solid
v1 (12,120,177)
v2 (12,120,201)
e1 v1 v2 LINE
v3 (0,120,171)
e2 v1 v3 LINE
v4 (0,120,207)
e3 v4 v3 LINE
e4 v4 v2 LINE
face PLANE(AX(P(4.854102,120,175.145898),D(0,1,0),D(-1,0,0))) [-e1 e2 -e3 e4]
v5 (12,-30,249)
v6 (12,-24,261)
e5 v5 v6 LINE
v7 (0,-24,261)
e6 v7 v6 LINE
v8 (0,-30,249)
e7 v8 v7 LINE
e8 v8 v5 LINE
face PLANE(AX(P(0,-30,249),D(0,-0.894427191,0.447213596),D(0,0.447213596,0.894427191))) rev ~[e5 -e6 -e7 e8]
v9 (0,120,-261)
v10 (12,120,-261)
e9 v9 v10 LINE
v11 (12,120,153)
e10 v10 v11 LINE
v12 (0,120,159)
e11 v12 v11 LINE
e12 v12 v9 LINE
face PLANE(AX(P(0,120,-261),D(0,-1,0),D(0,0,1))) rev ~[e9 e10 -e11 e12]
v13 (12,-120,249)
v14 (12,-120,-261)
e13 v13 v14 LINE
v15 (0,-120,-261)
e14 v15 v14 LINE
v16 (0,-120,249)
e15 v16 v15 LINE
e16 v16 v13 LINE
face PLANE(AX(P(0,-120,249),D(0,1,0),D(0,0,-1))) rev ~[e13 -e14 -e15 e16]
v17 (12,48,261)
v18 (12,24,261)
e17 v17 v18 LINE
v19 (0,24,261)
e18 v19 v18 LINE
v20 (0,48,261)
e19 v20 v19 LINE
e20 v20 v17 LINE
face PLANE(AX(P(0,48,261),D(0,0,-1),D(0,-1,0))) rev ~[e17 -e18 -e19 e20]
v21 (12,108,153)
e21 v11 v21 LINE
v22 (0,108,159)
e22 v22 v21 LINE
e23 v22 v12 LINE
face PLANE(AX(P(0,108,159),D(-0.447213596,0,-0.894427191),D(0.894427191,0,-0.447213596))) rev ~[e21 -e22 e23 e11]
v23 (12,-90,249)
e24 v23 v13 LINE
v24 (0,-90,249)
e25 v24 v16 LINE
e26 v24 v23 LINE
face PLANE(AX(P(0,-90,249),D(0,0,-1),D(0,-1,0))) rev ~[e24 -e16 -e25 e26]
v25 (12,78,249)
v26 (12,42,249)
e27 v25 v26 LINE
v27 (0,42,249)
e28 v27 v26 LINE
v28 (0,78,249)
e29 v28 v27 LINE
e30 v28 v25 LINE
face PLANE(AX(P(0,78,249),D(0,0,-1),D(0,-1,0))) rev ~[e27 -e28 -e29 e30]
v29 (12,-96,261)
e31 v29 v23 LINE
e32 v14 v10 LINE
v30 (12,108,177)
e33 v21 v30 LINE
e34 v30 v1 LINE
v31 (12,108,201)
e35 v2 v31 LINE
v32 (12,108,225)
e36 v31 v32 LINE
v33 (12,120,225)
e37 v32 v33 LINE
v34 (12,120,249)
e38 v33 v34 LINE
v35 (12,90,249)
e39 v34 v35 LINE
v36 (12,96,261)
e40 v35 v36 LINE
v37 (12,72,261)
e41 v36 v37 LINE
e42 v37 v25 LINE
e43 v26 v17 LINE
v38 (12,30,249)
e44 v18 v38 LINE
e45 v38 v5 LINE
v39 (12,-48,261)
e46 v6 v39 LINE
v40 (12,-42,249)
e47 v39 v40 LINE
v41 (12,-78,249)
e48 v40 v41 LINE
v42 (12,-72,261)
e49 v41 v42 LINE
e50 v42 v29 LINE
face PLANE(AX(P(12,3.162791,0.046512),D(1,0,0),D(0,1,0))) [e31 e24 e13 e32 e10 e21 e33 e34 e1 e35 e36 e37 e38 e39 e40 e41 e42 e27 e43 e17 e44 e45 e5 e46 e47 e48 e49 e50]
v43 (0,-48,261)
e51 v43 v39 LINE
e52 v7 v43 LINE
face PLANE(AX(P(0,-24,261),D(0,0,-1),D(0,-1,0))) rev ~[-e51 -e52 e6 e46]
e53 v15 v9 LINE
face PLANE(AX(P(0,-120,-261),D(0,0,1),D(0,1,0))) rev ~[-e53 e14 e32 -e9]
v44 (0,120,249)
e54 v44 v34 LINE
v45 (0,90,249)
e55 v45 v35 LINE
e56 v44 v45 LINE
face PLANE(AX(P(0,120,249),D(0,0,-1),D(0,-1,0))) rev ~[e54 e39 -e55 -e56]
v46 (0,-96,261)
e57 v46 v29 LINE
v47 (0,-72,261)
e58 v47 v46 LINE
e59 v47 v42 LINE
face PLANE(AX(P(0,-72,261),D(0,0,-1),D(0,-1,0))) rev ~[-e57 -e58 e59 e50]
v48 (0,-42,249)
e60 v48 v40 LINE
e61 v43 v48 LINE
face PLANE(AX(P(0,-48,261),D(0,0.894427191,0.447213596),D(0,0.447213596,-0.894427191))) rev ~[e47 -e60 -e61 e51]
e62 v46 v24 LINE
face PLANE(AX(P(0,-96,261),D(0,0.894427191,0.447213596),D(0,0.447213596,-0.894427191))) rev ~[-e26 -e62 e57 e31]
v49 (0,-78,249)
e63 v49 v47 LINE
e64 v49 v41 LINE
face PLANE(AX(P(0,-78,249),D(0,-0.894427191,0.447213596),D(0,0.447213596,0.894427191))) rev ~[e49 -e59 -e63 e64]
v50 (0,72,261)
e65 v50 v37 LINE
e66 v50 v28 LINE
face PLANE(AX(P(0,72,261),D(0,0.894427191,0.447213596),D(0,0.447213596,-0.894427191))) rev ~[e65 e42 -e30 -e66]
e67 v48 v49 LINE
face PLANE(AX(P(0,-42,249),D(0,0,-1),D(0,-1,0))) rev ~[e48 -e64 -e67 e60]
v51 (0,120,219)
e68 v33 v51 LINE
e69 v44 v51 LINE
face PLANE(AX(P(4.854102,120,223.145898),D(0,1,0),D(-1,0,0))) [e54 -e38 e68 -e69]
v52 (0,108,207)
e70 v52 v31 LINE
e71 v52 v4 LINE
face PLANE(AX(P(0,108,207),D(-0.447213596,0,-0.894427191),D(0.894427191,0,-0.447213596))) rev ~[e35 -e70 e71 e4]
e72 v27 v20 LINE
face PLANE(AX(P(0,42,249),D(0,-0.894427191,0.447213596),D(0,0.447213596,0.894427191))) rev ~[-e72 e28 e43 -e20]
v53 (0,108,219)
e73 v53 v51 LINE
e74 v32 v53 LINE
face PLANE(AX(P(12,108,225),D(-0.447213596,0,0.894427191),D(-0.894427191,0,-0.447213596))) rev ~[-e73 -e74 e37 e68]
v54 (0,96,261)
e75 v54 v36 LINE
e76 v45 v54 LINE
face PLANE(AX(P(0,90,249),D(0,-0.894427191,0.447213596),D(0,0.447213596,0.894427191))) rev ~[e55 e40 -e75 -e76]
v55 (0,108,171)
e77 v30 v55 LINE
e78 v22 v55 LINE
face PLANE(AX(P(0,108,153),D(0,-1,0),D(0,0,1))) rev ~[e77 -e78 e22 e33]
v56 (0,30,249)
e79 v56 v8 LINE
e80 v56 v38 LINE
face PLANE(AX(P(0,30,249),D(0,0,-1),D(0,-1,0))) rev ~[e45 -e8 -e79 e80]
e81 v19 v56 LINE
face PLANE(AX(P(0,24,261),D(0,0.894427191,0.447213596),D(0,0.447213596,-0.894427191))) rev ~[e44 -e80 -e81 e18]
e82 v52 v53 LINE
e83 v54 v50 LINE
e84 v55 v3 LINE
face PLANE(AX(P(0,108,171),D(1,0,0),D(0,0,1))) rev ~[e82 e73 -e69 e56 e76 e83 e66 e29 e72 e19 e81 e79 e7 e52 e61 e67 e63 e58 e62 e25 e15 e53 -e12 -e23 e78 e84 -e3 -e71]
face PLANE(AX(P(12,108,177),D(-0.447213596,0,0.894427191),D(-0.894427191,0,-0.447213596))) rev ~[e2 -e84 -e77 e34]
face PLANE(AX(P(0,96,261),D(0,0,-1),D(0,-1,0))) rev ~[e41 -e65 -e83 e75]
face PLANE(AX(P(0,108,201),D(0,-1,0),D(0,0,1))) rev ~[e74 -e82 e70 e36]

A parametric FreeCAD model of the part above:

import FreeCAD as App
import Part
import Sketcher

V = App.Vector

doc = App.newDocument("Part")
body = doc.addObject("PartDesign::Body", "Body")

# Sketch on YZ plane
sketch1 = body.newObject("Sketcher::SketchObject", "Sketch")
sketch1.AttachmentSupport = (doc.getObject("YZ_Plane"), [""])
sketch1.MapMode = "FlatFace"
sketch1.addGeometry(Part.LineSegment(V(120, 225, 0), V(120, 249, 0)), False)
sketch1.addGeometry(Part.LineSegment(V(120, 249, 0), V(90, 249, 0)), False)
sketch1.addGeometry(Part.LineSegment(V(90, 249, 0), V(96, 261, 0)), False)
sketch1.addGeometry(Part.LineSegment(V(96, 261, 0), V(72, 261, 0)), False)
sketch1.addGeometry(Part.LineSegment(V(72, 261, 0), V(78, 249, 0)), False)
sketch1.addGeometry(Part.LineSegment(V(78, 249, 0), V(42, 249, 0)), False)
sketch1.addGeometry(Part.LineSegment(V(42, 249, 0), V(48, 261, 0)), False)
sketch1.addGeometry(Part.LineSegment(V(48, 261, 0), V(24, 261, 0)), False)
sketch1.addGeometry(Part.LineSegment(V(24, 261, 0), V(30, 249, 0)), False)
sketch1.addGeometry(Part.LineSegment(V(30, 249, 0), V(-30, 249, 0)), False)
sketch1.addGeometry(Part.LineSegment(V(-30, 249, 0), V(-24, 261, 0)), False)
sketch1.addGeometry(Part.LineSegment(V(-24, 261, 0), V(-48, 261, 0)), False)
sketch1.addGeometry(Part.LineSegment(V(-48, 261, 0), V(-42, 249, 0)), False)
sketch1.addGeometry(Part.LineSegment(V(-42, 249, 0), V(-78, 249, 0)), False)
sketch1.addGeometry(Part.LineSegment(V(-78, 249, 0), V(-72, 261, 0)), False)
sketch1.addGeometry(Part.LineSegment(V(-72, 261, 0), V(-96, 261, 0)), False)
sketch1.addGeometry(Part.LineSegment(V(-96, 261, 0), V(-90, 249, 0)), False)
sketch1.addGeometry(Part.LineSegment(V(-90, 249, 0), V(-120, 249, 0)), False)
sketch1.addGeometry(Part.LineSegment(V(-120, 249, 0), V(-120, -261, 0)), False)
sketch1.addGeometry(Part.LineSegment(V(-120, -261, 0), V(120, -261, 0)), False)
sketch1.addGeometry(Part.LineSegment(V(120, -261, 0), V(120, 153, 0)), False)
sketch1.addGeometry(Part.LineSegment(V(120, 153, 0), V(108, 153, 0)), False)
sketch1.addGeometry(Part.LineSegment(V(108, 153, 0), V(108, 177, 0)), False)
sketch1.addGeometry(Part.LineSegment(V(108, 177, 0), V(120, 177, 0)), False)
sketch1.addGeometry(Part.LineSegment(V(120, 177, 0), V(120, 201, 0)), False)
sketch1.addGeometry(Part.LineSegment(V(120, 201, 0), V(108, 201, 0)), False)
sketch1.addGeometry(Part.LineSegment(V(108, 201, 0), V(108, 225, 0)), False)
sketch1.addGeometry(Part.LineSegment(V(108, 225, 0), V(120, 225, 0)), False)
sketch1.addConstraint(Sketcher.Constraint("Coincident", 0, 2, 1, 1))
sketch1.addConstraint(Sketcher.Constraint("Coincident", 1, 2, 2, 1))
sketch1.addConstraint(Sketcher.Constraint("Coincident", 2, 2, 3, 1))
sketch1.addConstraint(Sketcher.Constraint("Coincident", 3, 2, 4, 1))
sketch1.addConstraint(Sketcher.Constraint("Coincident", 4, 2, 5, 1))
sketch1.addConstraint(Sketcher.Constraint("Coincident", 5, 2, 6, 1))
sketch1.addConstraint(Sketcher.Constraint("Coincident", 6, 2, 7, 1))
sketch1.addConstraint(Sketcher.Constraint("Coincident", 7, 2, 8, 1))
sketch1.addConstraint(Sketcher.Constraint("Coincident", 8, 2, 9, 1))
sketch1.addConstraint(Sketcher.Constraint("Coincident", 9, 2, 10, 1))
sketch1.addConstraint(Sketcher.Constraint("Coincident", 10, 2, 11, 1))
sketch1.addConstraint(Sketcher.Constraint("Coincident", 11, 2, 12, 1))
sketch1.addConstraint(Sketcher.Constraint("Coincident", 12, 2, 13, 1))
sketch1.addConstraint(Sketcher.Constraint("Coincident", 13, 2, 14, 1))
sketch1.addConstraint(Sketcher.Constraint("Coincident", 14, 2, 15, 1))
sketch1.addConstraint(Sketcher.Constraint("Coincident", 15, 2, 16, 1))
sketch1.addConstraint(Sketcher.Constraint("Coincident", 16, 2, 17, 1))
sketch1.addConstraint(Sketcher.Constraint("Coincident", 17, 2, 18, 1))
sketch1.addConstraint(Sketcher.Constraint("Coincident", 18, 2, 19, 1))
sketch1.addConstraint(Sketcher.Constraint("Coincident", 19, 2, 20, 1))
sketch1.addConstraint(Sketcher.Constraint("Coincident", 20, 2, 21, 1))
sketch1.addConstraint(Sketcher.Constraint("Coincident", 21, 2, 22, 1))
sketch1.addConstraint(Sketcher.Constraint("Coincident", 22, 2, 23, 1))
sketch1.addConstraint(Sketcher.Constraint("Coincident", 23, 2, 24, 1))
sketch1.addConstraint(Sketcher.Constraint("Coincident", 24, 2, 25, 1))
sketch1.addConstraint(Sketcher.Constraint("Coincident", 25, 2, 26, 1))
sketch1.addConstraint(Sketcher.Constraint("Coincident", 26, 2, 27, 1))
sketch1.addConstraint(Sketcher.Constraint("Coincident", 27, 2, 0, 1))
sketch1.addConstraint(Sketcher.Constraint("Vertical", 0))
sketch1.addConstraint(Sketcher.Constraint("Horizontal", 1))
sketch1.addConstraint(Sketcher.Constraint("Horizontal", 3))
sketch1.addConstraint(Sketcher.Constraint("Horizontal", 5))
sketch1.addConstraint(Sketcher.Constraint("Horizontal", 7))
sketch1.addConstraint(Sketcher.Constraint("Horizontal", 9))
sketch1.addConstraint(Sketcher.Constraint("Horizontal", 11))
sketch1.addConstraint(Sketcher.Constraint("Horizontal", 13))
sketch1.addConstraint(Sketcher.Constraint("Horizontal", 15))
sketch1.addConstraint(Sketcher.Constraint("Horizontal", 17))
sketch1.addConstraint(Sketcher.Constraint("Vertical", 18))
sketch1.addConstraint(Sketcher.Constraint("Horizontal", 19))
sketch1.addConstraint(Sketcher.Constraint("Vertical", 20))
sketch1.addConstraint(Sketcher.Constraint("Horizontal", 21))
sketch1.addConstraint(Sketcher.Constraint("Vertical", 22))
sketch1.addConstraint(Sketcher.Constraint("Horizontal", 23))
sketch1.addConstraint(Sketcher.Constraint("Vertical", 24))
sketch1.addConstraint(Sketcher.Constraint("Horizontal", 25))
sketch1.addConstraint(Sketcher.Constraint("Vertical", 26))
sketch1.addConstraint(Sketcher.Constraint("Horizontal", 27))
sketch1.addConstraint(Sketcher.Constraint("Symmetric", 7, 2, 10, 2, -2))
sketch1.addConstraint(Sketcher.Constraint("Symmetric", 5, 2, 12, 2, -2))
sketch1.addConstraint(Sketcher.Constraint("Symmetric", 3, 2, 14, 2, -2))
sketch1.addConstraint(Sketcher.Constraint("Symmetric", 1, 2, 16, 2, -2))
sketch1.addConstraint(Sketcher.Constraint("Parallel", 2, 6))
sketch1.addConstraint(Sketcher.Constraint("Parallel", 4, 8))
sketch1.addConstraint(Sketcher.Constraint("Parallel", 6, 10))
sketch1.addConstraint(Sketcher.Constraint("Parallel", 8, 12))
sketch1.addConstraint(Sketcher.Constraint("Parallel", 10, 14))
sketch1.addConstraint(Sketcher.Constraint("Parallel", 12, 16))
sketch1.addConstraint(Sketcher.Constraint("Horizontal", 1, 2, 4, 2))
sketch1.addConstraint(Sketcher.Constraint("Horizontal", 3, 2, 6, 2))
sketch1.addConstraint(Sketcher.Constraint("Horizontal", 5, 2, 8, 2))
sketch1.addConstraint(Sketcher.Constraint("Vertical", 0, 2, 19, 2))
sketch1.addConstraint(Sketcher.Constraint("Vertical", 20, 2, 23, 2))
sketch1.addConstraint(Sketcher.Constraint("Vertical", 22, 2, 25, 2))
sketch1.addConstraint(Sketcher.Constraint("Equal", 3, 7))
sketch1.addConstraint(Sketcher.Constraint("Equal", 7, 11))
sketch1.addConstraint(Sketcher.Constraint("Equal", 1, 17))
sketch1.addConstraint(Sketcher.Constraint("Equal", 15, 0))
sketch1.addConstraint(Sketcher.Constraint("Equal", 0, 22))
sketch1.addConstraint(Sketcher.Constraint("Equal", 22, 24))
sketch1.addConstraint(Sketcher.Constraint("Equal", 24, 26))
sketch1.addConstraint(Sketcher.Constraint("DistanceX", 1, 2, 1, 1, 30.0))
sketch1.addConstraint(Sketcher.Constraint("DistanceX", 3, 2, 3, 1, 24.0))
sketch1.addConstraint(Sketcher.Constraint("DistanceX", 5, 2, 5, 1, 36.0))
sketch1.addConstraint(Sketcher.Constraint("DistanceX", 9, 2, 9, 1, 60.0))
sketch1.addConstraint(Sketcher.Constraint("DistanceX", 19, 1, 19, 2, 240.0))
sketch1.addConstraint(Sketcher.Constraint("DistanceX", 21, 2, 21, 1, 12.0))
sketch1.addConstraint(Sketcher.Constraint("DistanceY", 18, 2, 18, 1, 510.0))
sketch1.addConstraint(Sketcher.Constraint("DistanceY", -1, 1, 0, 2, 249.0))
sketch1.addConstraint(Sketcher.Constraint("DistanceY", -1, 1, 2, 2, 261.0))
pad1 = body.newObject("PartDesign::Pad", "Pad")
pad1.Profile = sketch1
pad1.Length = 12

# Sketch on XZ plane
sketch2 = body.newObject("Sketcher::SketchObject", "Sketch001")
sketch2.AttachmentSupport = (doc.getObject("XZ_Plane"), [""])
sketch2.MapMode = "FlatFace"
sketch2.AttachmentOffset = App.Placement(V(0, 0, -108), App.Rotation())
sketch2.addGeometry(Part.LineSegment(V(0, 219, 0), V(0, 225, 0)), False)
sketch2.addGeometry(Part.LineSegment(V(0, 225, 0), V(12, 225, 0)), False)
sketch2.addGeometry(Part.LineSegment(V(12, 225, 0), V(0, 219, 0)), False)
sketch2.addGeometry(Part.LineSegment(V(0, 207, 0), V(12, 201, 0)), False)
sketch2.addGeometry(Part.LineSegment(V(12, 201, 0), V(0, 201, 0)), False)
sketch2.addGeometry(Part.LineSegment(V(0, 201, 0), V(0, 207, 0)), False)
sketch2.addConstraint(Sketcher.Constraint("Coincident", 0, 2, 1, 1))
sketch2.addConstraint(Sketcher.Constraint("Coincident", 1, 2, 2, 1))
sketch2.addConstraint(Sketcher.Constraint("Coincident", 2, 2, 0, 1))
sketch2.addConstraint(Sketcher.Constraint("Coincident", 3, 2, 4, 1))
sketch2.addConstraint(Sketcher.Constraint("Coincident", 4, 2, 5, 1))
sketch2.addConstraint(Sketcher.Constraint("Coincident", 5, 2, 3, 1))
sketch2.addConstraint(Sketcher.Constraint("Vertical", 0))
sketch2.addConstraint(Sketcher.Constraint("Horizontal", 1))
sketch2.addConstraint(Sketcher.Constraint("Horizontal", 4))
sketch2.addConstraint(Sketcher.Constraint("Vertical", 5))
sketch2.addConstraint(Sketcher.Constraint("PointOnObject", 0, 2, -2))
sketch2.addConstraint(Sketcher.Constraint("PointOnObject", 4, 2, -2))
sketch2.addConstraint(Sketcher.Constraint("Vertical", 1, 2, 3, 2))
sketch2.addConstraint(Sketcher.Constraint("Equal", 0, 5))
sketch2.addConstraint(Sketcher.Constraint("DistanceX", 1, 1, 1, 2, 12.0))
sketch2.addConstraint(Sketcher.Constraint("DistanceY", 0, 1, 0, 2, 6.0))
sketch2.addConstraint(Sketcher.Constraint("DistanceY", -1, 1, 0, 2, 225.0))
sketch2.addConstraint(Sketcher.Constraint("DistanceY", -1, 1, 3, 2, 201.0))
pad2 = body.newObject("PartDesign::Pad", "Pad001")
pad2.Profile = sketch2
pad2.Length = 12
pad2.Reversed = True

# Sketch on XZ plane
sketch3 = body.newObject("Sketcher::SketchObject", "Sketch002")
sketch3.AttachmentSupport = (doc.getObject("XZ_Plane"), [""])
sketch3.MapMode = "FlatFace"
sketch3.AttachmentOffset = App.Placement(V(0, 0, -108), App.Rotation())
sketch3.addGeometry(Part.LineSegment(V(0, 177, 0), V(12, 177, 0)), False)
sketch3.addGeometry(Part.LineSegment(V(12, 177, 0), V(0, 171, 0)), False)
sketch3.addGeometry(Part.LineSegment(V(0, 171, 0), V(0, 177, 0)), False)
sketch3.addGeometry(Part.LineSegment(V(0, 159, 0), V(12, 153, 0)), False)
sketch3.addGeometry(Part.LineSegment(V(12, 153, 0), V(0, 153, 0)), False)
sketch3.addGeometry(Part.LineSegment(V(0, 153, 0), V(0, 159, 0)), False)
sketch3.addConstraint(Sketcher.Constraint("Coincident", 0, 2, 1, 1))
sketch3.addConstraint(Sketcher.Constraint("Coincident", 1, 2, 2, 1))
sketch3.addConstraint(Sketcher.Constraint("Coincident", 2, 2, 0, 1))
sketch3.addConstraint(Sketcher.Constraint("Coincident", 3, 2, 4, 1))
sketch3.addConstraint(Sketcher.Constraint("Coincident", 4, 2, 5, 1))
sketch3.addConstraint(Sketcher.Constraint("Coincident", 5, 2, 3, 1))
sketch3.addConstraint(Sketcher.Constraint("Horizontal", 0))
sketch3.addConstraint(Sketcher.Constraint("Vertical", 2))
sketch3.addConstraint(Sketcher.Constraint("Horizontal", 4))
sketch3.addConstraint(Sketcher.Constraint("Vertical", 5))
sketch3.addConstraint(Sketcher.Constraint("PointOnObject", 1, 2, -2))
sketch3.addConstraint(Sketcher.Constraint("PointOnObject", 4, 2, -2))
sketch3.addConstraint(Sketcher.Constraint("Vertical", 0, 2, 3, 2))
sketch3.addConstraint(Sketcher.Constraint("Equal", 2, 5))
sketch3.addConstraint(Sketcher.Constraint("DistanceX", 0, 1, 0, 2, 12.0))
sketch3.addConstraint(Sketcher.Constraint("DistanceY", 2, 1, 2, 2, 6.0))
sketch3.addConstraint(Sketcher.Constraint("DistanceY", -1, 1, 0, 2, 177.0))
sketch3.addConstraint(Sketcher.Constraint("DistanceY", -1, 1, 3, 2, 153.0))
pad3 = body.newObject("PartDesign::Pad", "Pad002")
pad3.Profile = sketch3
pad3.Length = 12
pad3.Reversed = True

doc.recompute()
